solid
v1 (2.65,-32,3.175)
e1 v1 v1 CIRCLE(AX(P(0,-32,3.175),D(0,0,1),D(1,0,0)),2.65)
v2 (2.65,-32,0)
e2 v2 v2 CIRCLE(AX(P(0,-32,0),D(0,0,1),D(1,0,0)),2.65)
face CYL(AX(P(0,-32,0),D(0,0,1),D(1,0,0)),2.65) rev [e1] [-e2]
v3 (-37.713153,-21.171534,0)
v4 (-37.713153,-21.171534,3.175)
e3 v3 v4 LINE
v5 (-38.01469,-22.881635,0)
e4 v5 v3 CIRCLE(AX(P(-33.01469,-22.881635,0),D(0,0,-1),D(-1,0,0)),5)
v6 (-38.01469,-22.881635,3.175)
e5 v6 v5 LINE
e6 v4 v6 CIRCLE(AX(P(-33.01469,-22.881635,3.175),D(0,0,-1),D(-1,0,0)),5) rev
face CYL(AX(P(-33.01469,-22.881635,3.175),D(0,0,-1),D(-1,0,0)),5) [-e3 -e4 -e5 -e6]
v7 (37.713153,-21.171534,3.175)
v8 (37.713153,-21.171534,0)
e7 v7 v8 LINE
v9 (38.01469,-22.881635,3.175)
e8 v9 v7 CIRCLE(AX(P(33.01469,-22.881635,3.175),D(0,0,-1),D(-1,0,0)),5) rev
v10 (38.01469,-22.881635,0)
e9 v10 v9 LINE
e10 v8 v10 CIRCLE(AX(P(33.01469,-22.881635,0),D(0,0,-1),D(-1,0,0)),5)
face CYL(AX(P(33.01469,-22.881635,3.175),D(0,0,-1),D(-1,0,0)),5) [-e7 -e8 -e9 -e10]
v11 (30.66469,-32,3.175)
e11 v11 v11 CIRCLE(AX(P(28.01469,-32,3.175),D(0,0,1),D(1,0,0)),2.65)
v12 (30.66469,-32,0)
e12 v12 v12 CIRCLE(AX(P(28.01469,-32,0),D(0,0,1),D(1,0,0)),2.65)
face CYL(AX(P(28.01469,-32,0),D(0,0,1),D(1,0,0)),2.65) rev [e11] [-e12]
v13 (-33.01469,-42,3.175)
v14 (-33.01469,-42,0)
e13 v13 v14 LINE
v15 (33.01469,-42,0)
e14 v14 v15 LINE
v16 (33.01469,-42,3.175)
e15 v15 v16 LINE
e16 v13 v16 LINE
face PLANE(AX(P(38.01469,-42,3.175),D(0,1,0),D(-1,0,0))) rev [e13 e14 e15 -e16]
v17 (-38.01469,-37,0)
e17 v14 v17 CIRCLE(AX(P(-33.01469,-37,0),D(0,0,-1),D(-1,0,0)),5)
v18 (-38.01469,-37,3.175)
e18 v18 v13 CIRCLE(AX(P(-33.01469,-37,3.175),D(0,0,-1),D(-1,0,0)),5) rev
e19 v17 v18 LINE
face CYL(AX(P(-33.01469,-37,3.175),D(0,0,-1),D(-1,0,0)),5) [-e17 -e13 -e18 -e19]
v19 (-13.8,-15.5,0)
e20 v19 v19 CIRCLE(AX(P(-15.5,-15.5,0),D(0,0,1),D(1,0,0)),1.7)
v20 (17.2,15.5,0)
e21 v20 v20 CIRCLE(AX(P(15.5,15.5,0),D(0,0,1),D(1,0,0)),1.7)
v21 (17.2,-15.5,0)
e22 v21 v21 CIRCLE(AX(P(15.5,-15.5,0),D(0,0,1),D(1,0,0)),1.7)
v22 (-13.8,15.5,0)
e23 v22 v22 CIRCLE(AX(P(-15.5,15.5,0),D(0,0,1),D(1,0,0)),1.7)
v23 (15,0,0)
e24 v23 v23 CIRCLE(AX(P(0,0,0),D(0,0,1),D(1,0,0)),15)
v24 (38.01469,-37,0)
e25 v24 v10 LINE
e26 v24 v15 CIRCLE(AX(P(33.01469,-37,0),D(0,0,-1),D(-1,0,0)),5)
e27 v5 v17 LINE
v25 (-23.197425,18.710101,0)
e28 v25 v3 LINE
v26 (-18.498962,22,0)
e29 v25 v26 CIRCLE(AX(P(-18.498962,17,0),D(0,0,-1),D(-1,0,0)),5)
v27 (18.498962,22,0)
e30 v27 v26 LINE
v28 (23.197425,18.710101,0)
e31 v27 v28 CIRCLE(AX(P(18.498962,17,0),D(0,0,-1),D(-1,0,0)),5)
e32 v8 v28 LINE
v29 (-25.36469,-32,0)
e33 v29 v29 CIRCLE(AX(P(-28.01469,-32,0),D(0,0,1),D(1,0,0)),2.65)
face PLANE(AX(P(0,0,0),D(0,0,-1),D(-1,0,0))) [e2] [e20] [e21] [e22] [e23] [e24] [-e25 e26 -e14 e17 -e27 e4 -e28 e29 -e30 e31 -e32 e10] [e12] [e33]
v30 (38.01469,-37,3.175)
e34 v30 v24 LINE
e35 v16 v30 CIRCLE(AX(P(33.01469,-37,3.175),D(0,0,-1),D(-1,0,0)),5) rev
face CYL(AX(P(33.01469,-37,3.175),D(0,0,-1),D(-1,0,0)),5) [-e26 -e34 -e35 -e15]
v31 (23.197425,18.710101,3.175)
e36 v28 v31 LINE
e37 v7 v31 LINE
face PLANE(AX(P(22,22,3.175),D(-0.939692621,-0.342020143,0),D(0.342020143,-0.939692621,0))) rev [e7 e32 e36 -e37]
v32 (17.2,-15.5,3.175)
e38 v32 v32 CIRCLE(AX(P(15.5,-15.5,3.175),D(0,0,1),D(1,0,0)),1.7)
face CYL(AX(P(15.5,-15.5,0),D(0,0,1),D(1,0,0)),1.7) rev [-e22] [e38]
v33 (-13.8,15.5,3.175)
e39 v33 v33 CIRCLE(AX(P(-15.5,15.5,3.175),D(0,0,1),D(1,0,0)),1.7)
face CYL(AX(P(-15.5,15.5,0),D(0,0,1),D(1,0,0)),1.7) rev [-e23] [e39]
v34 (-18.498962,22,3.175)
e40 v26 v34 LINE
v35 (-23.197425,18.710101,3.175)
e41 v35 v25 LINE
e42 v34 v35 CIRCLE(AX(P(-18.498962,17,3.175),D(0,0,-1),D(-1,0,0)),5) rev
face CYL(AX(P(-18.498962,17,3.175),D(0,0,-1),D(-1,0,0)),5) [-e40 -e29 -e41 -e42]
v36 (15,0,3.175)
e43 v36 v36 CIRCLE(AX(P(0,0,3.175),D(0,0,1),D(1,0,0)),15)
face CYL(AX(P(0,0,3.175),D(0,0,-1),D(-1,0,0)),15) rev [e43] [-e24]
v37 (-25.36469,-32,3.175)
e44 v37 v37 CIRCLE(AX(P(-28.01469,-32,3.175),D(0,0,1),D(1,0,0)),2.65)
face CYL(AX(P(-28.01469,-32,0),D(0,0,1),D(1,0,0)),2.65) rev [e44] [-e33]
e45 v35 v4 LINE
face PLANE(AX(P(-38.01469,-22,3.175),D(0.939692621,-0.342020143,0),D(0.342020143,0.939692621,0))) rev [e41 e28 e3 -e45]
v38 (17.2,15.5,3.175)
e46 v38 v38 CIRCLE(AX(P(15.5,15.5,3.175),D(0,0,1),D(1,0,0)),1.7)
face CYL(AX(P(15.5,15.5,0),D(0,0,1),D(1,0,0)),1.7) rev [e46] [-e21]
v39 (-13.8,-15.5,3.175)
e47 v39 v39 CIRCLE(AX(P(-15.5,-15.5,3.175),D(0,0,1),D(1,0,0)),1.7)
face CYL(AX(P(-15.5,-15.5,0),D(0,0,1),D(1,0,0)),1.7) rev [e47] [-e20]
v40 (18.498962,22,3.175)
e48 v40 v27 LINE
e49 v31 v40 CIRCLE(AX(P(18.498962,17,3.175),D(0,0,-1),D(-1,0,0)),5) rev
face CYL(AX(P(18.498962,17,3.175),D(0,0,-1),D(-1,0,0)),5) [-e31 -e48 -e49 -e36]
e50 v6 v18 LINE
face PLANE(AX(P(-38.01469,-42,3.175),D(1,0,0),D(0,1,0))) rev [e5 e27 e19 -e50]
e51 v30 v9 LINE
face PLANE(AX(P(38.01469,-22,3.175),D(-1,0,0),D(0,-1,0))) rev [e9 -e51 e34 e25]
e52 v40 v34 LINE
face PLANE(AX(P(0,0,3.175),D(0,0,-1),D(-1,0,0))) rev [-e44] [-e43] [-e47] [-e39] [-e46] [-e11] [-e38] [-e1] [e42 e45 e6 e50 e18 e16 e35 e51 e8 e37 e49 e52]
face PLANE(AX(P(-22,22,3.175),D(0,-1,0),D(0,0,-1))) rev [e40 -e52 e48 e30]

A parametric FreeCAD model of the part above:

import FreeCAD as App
import Part
import Sketcher
from FreeCAD import Vector
Q = App.Units.Quantity


def edges_at(feature, points):
    """Names of the edges that pass closest to the given points."""
    edges = feature.Shape.Edges
    near = lambda p: min(range(len(edges)), key=lambda i: edges[i].distToShape(Part.Vertex(*p))[0])
    return sorted({f"Edge{near(p) + 1}" for p in points})


def add_polygon(sketch, points):
    """Adds a closed chain of lines whose ends are joined by coincident constraints."""
    first, n = sketch.GeometryCount, len(points)
    for a, b in zip(points, points[1:] + points[:1]):
        sketch.addGeometry(Part.LineSegment(App.Vector(*a, 0), App.Vector(*b, 0)), False)
    for i in range(n):
        sketch.addConstraint(Sketcher.Constraint("Coincident", first + i, 2, first + (i + 1) % n, 1))

doc = App.newDocument("Part")
body = doc.addObject("PartDesign::Body", "Body")

# Sketch on XY plane
sketch1 = body.newObject("Sketcher::SketchObject", "Sketch")
sketch1.AttachmentSupport = (doc.getObject("XY_Plane"), [""])
sketch1.MapMode = "FlatFace"
add_polygon(sketch1, [(22, 22), (-22, 22), (-38, -22), (-38, -42), (38, -42), (38, -22)])  # lines 0-5
sketch1.addGeometry(Part.Circle(Vector(0, 0, 0), Vector(0, 0, 1), 15), False)  # 6
sketch1.addConstraint([
    Sketcher.Constraint("Horizontal", 0),
    Sketcher.Constraint("Vertical", 2),
    Sketcher.Constraint("Horizontal", 3),
    Sketcher.Constraint("Vertical", 4),
    Sketcher.Constraint("Coincident", 6, 3, -1, 1),
    Sketcher.Constraint("Symmetric", 1, 2, 4, 2, -2),
    Sketcher.Constraint("Equal", 1, 5),
    Sketcher.Constraint("Diameter", 6, Q("30 mm")),
    Sketcher.Constraint("DistanceX", 0, 2, 0, 1, Q("44 mm")),
    Sketcher.Constraint("DistanceY", 2, 2, 2, 1, Q("20 mm")),
    Sketcher.Constraint("Angle", 1, Q("-110 deg")),
    Sketcher.Constraint("DistanceY", -1, 1, 0, 2, Q("22 mm")),
    Sketcher.Constraint("DistanceY", 1, 2, -1, 1, Q("22 mm")),
])
pad1 = body.newObject("PartDesign::Pad", "Pad")
pad1.Profile = sketch1
pad1.Length = 3.175

# Sketch on XY plane
sketch2 = body.newObject("Sketcher::SketchObject", "Sketch001")
sketch2.AttachmentSupport = (doc.getObject("XY_Plane"), [""])
sketch2.MapMode = "FlatFace"
sketch2.AttachmentOffset = App.Placement(Vector(0, 0, 3.175), App.Rotation())
sketch2.addGeometry([
    Part.Circle(Vector(15.5, 15.5, 0), Vector(0, 0, 1), 1.7),  # 0
    Part.Circle(Vector(15.5, -15.5, 0), Vector(0, 0, 1), 1.7),  # 1
    Part.Circle(Vector(-15.5, -15.5, 0), Vector(0, 0, 1), 1.7),  # 2
    Part.Circle(Vector(-15.5, 15.5, 0), Vector(0, 0, 1), 1.7),  # 3
    Part.Circle(Vector(0, -32, 0), Vector(0, 0, 1), 2.6),  # 4
    Part.Circle(Vector(28, -32, 0), Vector(0, 0, 1), 2.6),  # 5
    Part.Circle(Vector(-28, -32, 0), Vector(0, 0, 1), 2.6),  # 6
], False)
sketch2.addConstraint([
    Sketcher.Constraint("Equal", 0, 1),
    Sketcher.Constraint("Equal", 1, 2),
    Sketcher.Constraint("Equal", 2, 3),
    Sketcher.Constraint("Equal", 4, 5),
    Sketcher.Constraint("Equal", 5, 6),
    Sketcher.Constraint("Symmetric", 0, 3, 2, 3, -1, 1),
    Sketcher.Constraint("Symmetric", 1, 3, 3, 3, -1, 1),
    Sketcher.Constraint("Symmetric", 1, 3, 2, 3, -2),
    Sketcher.Constraint("Symmetric", 5, 3, 6, 3, -2),
    Sketcher.Constraint("PointOnObject", 4, 3, -2),
    Sketcher.Constraint("Horizontal", 4, 3, 5, 3),
    Sketcher.Constraint("Diameter", 0, Q("3.4 mm")),
    Sketcher.Constraint("Diameter", 4, Q("5.3 mm")),
    Sketcher.Constraint("DistanceY", 4, 3, -1, 1, Q("32 mm")),
    Sketcher.Constraint("DistanceY", 1, 3, 0, 3, Q("31 mm")),
    Sketcher.Constraint("DistanceX", 2, 3, 1, 3, Q("31 mm")),
    Sketcher.Constraint("DistanceX", -1, 1, 5, 3, Q("28.01469 mm")),
])
pocket1 = body.newObject("PartDesign::Pocket", "Pocket")
pocket1.Profile = sketch2
pocket1.Type = "ThroughAll"
doc.recompute()

fillet = body.newObject("PartDesign::Fillet", "Fillet")
fillet.Base = (pocket1, edges_at(pocket1, [
    (38.015, -22, 1.587),
    (38.015, -42, 1.587),
    (-38.015, -42, 1.587),
    (-38.015, -22, 1.587),
    (-22, 22, 1.587),
    (22, 22, 1.587),
]))
fillet.Radius = 5

doc.recompute()
